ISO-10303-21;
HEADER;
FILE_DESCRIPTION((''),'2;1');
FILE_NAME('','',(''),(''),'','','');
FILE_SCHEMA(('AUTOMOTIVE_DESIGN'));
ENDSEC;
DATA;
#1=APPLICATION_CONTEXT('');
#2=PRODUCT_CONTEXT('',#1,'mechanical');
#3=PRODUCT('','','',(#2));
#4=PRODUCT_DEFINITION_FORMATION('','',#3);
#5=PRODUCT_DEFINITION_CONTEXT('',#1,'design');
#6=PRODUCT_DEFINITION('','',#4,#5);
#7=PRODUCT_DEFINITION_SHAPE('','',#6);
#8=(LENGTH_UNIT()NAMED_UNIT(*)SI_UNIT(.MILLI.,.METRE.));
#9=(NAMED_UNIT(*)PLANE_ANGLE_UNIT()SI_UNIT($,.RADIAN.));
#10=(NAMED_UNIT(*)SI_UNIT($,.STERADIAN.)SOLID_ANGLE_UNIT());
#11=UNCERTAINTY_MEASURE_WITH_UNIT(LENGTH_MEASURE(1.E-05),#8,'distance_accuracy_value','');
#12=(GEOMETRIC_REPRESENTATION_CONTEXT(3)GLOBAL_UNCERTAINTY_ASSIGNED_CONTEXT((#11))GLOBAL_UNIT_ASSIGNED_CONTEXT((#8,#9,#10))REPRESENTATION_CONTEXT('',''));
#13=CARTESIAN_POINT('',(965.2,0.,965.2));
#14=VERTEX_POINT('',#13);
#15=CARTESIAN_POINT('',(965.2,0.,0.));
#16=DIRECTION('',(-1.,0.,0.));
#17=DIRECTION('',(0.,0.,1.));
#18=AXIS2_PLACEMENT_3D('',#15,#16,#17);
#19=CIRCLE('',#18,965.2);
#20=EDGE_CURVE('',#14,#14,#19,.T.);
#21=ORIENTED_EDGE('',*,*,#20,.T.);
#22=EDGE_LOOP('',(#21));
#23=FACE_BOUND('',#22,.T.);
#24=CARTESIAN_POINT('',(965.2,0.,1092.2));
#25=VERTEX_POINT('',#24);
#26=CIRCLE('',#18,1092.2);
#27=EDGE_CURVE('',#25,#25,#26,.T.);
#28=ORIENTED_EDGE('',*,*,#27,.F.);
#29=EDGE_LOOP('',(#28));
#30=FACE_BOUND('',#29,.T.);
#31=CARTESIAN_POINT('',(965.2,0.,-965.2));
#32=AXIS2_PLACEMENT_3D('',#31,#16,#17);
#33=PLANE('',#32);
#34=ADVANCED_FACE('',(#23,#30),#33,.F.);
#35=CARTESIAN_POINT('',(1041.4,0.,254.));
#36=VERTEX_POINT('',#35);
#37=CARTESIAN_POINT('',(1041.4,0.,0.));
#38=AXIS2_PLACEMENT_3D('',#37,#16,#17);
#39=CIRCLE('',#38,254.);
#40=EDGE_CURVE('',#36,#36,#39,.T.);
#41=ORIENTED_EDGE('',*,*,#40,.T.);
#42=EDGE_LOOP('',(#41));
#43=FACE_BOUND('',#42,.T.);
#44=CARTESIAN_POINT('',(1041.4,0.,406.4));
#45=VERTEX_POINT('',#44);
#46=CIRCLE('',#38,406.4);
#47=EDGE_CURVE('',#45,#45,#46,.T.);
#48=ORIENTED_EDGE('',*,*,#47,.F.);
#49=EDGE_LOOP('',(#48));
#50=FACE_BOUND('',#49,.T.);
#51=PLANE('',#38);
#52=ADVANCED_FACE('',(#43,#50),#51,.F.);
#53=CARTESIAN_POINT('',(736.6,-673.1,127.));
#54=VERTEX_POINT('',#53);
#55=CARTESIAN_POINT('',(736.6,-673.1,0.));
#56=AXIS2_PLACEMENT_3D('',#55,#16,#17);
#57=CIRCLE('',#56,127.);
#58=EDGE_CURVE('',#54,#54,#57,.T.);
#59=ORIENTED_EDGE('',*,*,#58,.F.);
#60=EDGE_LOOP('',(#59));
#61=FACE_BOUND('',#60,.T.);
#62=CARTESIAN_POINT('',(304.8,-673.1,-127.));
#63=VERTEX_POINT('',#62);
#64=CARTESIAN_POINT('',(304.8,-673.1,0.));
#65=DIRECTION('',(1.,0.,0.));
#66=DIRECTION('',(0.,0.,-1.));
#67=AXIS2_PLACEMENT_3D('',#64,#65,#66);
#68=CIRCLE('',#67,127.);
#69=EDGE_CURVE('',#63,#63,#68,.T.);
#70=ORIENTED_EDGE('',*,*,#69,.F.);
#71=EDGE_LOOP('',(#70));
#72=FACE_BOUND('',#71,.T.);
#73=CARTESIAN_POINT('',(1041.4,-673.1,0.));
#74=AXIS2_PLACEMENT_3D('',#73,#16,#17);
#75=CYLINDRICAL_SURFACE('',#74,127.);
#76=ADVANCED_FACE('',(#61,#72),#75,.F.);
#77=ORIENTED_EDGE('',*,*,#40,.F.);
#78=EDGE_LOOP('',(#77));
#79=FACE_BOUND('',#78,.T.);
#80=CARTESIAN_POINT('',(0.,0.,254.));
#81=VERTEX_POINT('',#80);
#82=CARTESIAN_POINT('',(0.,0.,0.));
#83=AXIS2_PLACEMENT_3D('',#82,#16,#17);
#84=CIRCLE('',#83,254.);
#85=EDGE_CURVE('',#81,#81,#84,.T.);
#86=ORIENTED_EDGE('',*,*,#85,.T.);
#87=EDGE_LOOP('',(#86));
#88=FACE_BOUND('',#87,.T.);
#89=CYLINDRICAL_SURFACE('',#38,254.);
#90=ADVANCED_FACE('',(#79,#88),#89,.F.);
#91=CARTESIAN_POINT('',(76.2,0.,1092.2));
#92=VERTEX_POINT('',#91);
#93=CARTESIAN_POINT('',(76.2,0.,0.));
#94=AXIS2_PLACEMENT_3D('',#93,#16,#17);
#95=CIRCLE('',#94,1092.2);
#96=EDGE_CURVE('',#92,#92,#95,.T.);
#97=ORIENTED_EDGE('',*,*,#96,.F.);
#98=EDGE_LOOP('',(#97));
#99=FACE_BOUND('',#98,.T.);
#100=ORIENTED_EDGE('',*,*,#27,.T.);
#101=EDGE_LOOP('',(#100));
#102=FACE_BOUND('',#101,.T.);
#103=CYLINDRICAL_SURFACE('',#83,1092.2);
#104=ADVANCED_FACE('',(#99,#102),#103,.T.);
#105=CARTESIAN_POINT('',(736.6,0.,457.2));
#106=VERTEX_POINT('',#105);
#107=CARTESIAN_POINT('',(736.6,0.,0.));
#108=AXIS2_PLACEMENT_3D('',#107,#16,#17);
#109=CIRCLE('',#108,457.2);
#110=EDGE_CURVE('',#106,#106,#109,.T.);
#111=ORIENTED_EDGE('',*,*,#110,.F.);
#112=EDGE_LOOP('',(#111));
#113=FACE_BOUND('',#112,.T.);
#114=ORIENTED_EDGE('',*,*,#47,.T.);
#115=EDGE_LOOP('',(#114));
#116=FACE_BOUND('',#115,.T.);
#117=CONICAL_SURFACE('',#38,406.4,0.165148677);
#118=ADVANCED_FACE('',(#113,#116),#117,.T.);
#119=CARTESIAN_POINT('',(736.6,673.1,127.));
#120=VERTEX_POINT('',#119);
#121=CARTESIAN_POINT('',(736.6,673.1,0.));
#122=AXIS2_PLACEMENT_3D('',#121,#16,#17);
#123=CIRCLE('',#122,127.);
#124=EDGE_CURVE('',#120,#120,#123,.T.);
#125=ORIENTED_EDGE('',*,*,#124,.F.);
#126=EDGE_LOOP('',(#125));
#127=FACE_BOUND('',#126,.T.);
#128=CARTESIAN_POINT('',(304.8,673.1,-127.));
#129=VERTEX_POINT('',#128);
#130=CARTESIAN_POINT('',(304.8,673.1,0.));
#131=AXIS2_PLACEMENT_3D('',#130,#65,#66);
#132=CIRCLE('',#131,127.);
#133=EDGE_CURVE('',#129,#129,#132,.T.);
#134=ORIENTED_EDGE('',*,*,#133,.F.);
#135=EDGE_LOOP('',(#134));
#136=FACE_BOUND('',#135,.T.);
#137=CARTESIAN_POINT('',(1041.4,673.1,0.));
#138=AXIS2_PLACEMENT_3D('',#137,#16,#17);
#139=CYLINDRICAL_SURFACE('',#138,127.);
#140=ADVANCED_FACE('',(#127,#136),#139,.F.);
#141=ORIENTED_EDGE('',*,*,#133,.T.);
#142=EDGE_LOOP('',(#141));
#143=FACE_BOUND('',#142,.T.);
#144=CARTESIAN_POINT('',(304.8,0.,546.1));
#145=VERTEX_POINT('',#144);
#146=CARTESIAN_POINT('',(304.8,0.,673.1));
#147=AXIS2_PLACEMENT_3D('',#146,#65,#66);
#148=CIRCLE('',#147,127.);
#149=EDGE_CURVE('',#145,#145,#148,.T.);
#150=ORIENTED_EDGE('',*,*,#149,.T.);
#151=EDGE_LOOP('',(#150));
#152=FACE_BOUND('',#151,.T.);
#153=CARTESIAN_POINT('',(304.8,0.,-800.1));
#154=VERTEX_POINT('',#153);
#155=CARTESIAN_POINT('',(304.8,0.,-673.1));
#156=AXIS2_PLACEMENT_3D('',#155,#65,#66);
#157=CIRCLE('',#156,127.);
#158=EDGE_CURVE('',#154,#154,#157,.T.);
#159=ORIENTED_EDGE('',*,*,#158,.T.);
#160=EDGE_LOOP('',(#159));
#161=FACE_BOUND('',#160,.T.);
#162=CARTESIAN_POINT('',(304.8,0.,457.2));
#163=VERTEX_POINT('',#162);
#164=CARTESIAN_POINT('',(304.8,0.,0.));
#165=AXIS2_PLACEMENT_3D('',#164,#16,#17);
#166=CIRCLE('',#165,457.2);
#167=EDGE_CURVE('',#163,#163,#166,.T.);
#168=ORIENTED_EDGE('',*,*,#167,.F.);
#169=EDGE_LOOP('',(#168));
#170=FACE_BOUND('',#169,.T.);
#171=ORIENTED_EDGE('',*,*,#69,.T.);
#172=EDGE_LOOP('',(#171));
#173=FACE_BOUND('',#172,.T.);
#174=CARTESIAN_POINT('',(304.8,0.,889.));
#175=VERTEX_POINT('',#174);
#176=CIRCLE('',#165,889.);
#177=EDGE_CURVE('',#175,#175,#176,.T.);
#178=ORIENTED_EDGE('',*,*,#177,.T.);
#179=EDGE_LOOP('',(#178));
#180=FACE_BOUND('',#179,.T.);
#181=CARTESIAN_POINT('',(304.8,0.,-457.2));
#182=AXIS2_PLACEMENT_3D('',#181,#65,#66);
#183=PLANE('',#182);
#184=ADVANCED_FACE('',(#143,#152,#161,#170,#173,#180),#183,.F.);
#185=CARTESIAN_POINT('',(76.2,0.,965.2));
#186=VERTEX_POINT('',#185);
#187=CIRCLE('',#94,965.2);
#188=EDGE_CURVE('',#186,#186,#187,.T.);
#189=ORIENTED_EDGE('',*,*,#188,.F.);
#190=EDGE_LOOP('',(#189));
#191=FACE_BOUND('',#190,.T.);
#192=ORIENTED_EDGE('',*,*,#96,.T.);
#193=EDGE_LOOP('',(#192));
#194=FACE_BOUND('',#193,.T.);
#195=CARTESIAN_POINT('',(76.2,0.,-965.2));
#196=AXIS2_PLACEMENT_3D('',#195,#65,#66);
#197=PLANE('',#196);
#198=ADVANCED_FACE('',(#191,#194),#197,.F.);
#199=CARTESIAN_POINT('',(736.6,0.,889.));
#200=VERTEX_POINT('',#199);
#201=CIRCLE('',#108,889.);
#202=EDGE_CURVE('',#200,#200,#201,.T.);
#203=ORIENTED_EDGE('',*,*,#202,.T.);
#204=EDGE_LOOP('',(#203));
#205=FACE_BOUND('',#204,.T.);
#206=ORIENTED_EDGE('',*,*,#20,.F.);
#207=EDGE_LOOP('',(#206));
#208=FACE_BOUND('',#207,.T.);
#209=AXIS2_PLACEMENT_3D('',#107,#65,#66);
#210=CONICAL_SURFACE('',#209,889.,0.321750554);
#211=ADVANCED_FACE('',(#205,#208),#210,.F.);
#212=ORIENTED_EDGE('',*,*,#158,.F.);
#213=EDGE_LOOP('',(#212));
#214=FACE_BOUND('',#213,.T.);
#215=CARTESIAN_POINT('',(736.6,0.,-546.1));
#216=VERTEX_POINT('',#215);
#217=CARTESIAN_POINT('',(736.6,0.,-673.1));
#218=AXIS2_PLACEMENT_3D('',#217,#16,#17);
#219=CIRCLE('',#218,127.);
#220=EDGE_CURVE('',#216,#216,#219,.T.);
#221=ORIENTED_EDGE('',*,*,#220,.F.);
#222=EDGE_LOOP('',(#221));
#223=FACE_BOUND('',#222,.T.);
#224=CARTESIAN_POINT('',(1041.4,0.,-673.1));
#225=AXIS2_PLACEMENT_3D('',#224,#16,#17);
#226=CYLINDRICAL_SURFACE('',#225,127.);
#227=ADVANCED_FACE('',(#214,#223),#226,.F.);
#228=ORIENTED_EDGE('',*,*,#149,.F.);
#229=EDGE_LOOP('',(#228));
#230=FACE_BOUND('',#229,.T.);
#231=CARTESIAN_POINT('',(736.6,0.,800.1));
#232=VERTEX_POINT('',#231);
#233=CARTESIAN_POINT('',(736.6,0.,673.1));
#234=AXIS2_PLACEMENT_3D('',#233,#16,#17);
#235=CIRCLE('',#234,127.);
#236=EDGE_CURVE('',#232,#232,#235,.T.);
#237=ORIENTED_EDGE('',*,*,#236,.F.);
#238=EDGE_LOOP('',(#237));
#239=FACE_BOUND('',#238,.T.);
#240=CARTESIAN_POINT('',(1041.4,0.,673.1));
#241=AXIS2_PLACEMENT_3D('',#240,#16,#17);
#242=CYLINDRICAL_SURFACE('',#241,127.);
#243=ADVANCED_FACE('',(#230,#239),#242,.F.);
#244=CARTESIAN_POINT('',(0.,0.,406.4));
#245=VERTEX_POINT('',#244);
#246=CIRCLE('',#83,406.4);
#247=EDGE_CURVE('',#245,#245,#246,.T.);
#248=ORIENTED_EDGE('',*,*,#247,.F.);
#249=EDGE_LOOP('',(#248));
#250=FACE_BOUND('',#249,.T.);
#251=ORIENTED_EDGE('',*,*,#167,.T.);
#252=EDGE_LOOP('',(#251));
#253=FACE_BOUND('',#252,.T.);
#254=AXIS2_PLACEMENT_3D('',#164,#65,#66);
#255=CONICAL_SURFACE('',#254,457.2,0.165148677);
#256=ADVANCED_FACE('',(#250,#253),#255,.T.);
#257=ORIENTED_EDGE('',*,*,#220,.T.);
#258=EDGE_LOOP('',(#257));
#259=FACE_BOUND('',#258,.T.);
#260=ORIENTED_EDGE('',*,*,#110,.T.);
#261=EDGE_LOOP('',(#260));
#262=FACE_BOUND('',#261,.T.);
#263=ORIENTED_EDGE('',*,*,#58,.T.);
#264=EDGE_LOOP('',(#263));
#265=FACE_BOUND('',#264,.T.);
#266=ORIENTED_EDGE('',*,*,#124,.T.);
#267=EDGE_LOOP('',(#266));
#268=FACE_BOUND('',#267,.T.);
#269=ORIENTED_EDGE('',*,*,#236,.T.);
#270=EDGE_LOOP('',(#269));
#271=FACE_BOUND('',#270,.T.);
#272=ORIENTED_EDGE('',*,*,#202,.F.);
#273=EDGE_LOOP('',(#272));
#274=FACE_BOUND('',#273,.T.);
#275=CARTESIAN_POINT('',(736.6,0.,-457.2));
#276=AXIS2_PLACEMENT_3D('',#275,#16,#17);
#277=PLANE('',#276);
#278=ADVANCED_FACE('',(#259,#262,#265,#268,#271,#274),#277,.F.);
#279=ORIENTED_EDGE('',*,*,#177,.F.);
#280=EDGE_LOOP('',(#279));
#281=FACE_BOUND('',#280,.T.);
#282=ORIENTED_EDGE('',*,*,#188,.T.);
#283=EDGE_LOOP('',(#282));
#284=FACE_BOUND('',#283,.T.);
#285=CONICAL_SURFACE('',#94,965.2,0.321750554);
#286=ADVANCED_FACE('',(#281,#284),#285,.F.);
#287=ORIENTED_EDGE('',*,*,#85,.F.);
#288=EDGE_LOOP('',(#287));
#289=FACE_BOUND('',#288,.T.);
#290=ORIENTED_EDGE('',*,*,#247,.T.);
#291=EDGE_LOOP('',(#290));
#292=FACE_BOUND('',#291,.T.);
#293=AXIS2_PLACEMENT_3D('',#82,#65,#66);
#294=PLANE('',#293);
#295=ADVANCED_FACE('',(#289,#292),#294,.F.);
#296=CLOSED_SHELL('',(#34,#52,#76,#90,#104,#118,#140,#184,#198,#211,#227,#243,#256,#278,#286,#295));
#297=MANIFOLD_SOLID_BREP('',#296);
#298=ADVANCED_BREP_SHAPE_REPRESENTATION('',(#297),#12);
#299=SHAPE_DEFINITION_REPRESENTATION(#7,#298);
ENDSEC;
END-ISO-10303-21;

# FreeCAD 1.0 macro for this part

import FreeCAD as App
import Part
import Sketcher
from FreeCAD import Vector
Q = App.Units.Quantity

doc = App.newDocument("Part")
body = doc.addObject("PartDesign::Body", "Body")

sketch1 = doc.addObject("Sketcher::SketchObject", "Sketch")
body.addObject(sketch1)
sketch1.AttachmentSupport = (doc.XZ_Plane, [""])
sketch1.MapMode = "FlatFace"
sketch1.addGeometry([
    Part.LineSegment(Vector(0, -406, 0), Vector(0, 0, 0)),
    Part.LineSegment(Vector(0, 0, 0), Vector(1041, 0, 0)),
    Part.LineSegment(Vector(1041, 0, 0), Vector(1041, -406, 0)),
    Part.LineSegment(Vector(1041, -406, 0), Vector(737, -457, 0)),
    Part.LineSegment(Vector(737, -457, 0), Vector(737, -889, 0)),
    Part.LineSegment(Vector(737, -889, 0), Vector(965, -965, 0)),
    Part.LineSegment(Vector(965, -965, 0), Vector(965, -1092, 0)),
    Part.LineSegment(Vector(965, -1092, 0), Vector(76, -1092, 0)),
    Part.LineSegment(Vector(76, -1092, 0), Vector(76, -965, 0)),
    Part.LineSegment(Vector(76, -965, 0), Vector(305, -889, 0)),
    Part.LineSegment(Vector(305, -889, 0), Vector(305, -457, 0)),
    Part.LineSegment(Vector(305, -457, 0), Vector(0, -406, 0)),
], False)
sketch1.addConstraint([
    Sketcher.Constraint("Coincident", 0, 2, 1, 1),
    Sketcher.Constraint("Coincident", 1, 2, 2, 1),
    Sketcher.Constraint("Coincident", 2, 2, 3, 1),
    Sketcher.Constraint("Coincident", 3, 2, 4, 1),
    Sketcher.Constraint("Coincident", 4, 2, 5, 1),
    Sketcher.Constraint("Coincident", 5, 2, 6, 1),
    Sketcher.Constraint("Coincident", 6, 2, 7, 1),
    Sketcher.Constraint("Coincident", 7, 2, 8, 1),
    Sketcher.Constraint("Coincident", 8, 2, 9, 1),
    Sketcher.Constraint("Coincident", 9, 2, 10, 1),
    Sketcher.Constraint("Coincident", 10, 2, 11, 1),
    Sketcher.Constraint("Coincident", 11, 2, 0, 1),
    Sketcher.Constraint("Vertical", 0),
    Sketcher.Constraint("Horizontal", 1),
    Sketcher.Constraint("Vertical", 2),
    Sketcher.Constraint("Vertical", 4),
    Sketcher.Constraint("Vertical", 6),
    Sketcher.Constraint("Horizontal", 7),
    Sketcher.Constraint("Vertical", 8),
    Sketcher.Constraint("Vertical", 10),
    Sketcher.Constraint("Coincident", 0, 2, -1, 1),
    Sketcher.Constraint("Horizontal", 5, 2, 8, 2),
    Sketcher.Constraint("Horizontal", 4, 2, 9, 2),
    Sketcher.Constraint("Horizontal", 3, 2, 10, 2),
    Sketcher.Constraint("Horizontal", 2, 2, 11, 2),
    Sketcher.Constraint("Equal", 5, 9),
    Sketcher.Constraint("Equal", 3, 11),
    Sketcher.Constraint("DistanceX", 1, 1, 1, 2, Q("41 in")),
    Sketcher.Constraint("DistanceX", 7, 2, 7, 1, Q("35 in")),
    Sketcher.Constraint("DistanceY", 0, 1, 0, 2, Q("16 in")),
    Sketcher.Constraint("DistanceY", 4, 2, 4, 1, Q("17 in")),
    Sketcher.Constraint("DistanceY", 6, 2, 6, 1, Q("5 in")),
    Sketcher.Constraint("DistanceX", -1, 1, 3, 2, Q("29 in")),
    Sketcher.Constraint("DistanceY", 3, 2, -1, 1, Q("18 in")),
    Sketcher.Constraint("DistanceY", 5, 2, -1, 1, Q("38 in")),
])
revolution = doc.addObject("PartDesign::Revolution", "Revolution")
body.addObject(revolution)
revolution.Profile = sketch1
revolution.ReferenceAxis = (sketch1, ["H_Axis"])
revolution.Angle = 360

sketch2 = doc.addObject("Sketcher::SketchObject", "Sketch001")
body.addObject(sketch2)
sketch2.AttachmentSupport = (doc.YZ_Plane, [""])
sketch2.MapMode = "FlatFace"
sketch2.addGeometry([
    Part.Circle(Vector(673, 0, 0), Vector(0, 0, 1), 127),
    Part.Circle(Vector(0, 673, 0), Vector(0, 0, 1), 127),
    Part.Circle(Vector(-673, 0, 0), Vector(0, 0, 1), 127),
    Part.Circle(Vector(0, -673, 0), Vector(0, 0, 1), 127),
], False)
sketch2.addConstraint([
    Sketcher.Constraint("Equal", 0, 1),
    Sketcher.Constraint("Equal", 1, 2),
    Sketcher.Constraint("Equal", 2, 3),
    Sketcher.Constraint("Symmetric", 0, 3, 2, 3, -1, 1),
    Sketcher.Constraint("Symmetric", 1, 3, 3, 3, -1, 1),
    Sketcher.Constraint("PointOnObject", 0, 3, -1),
    Sketcher.Constraint("PointOnObject", 1, 3, -2),
    Sketcher.Constraint("Diameter", 0, Q("10 in")),
    Sketcher.Constraint("DistanceX", 2, 3, 0, 3, Q("53 in")),
    Sketcher.Constraint("DistanceY", 3, 3, 1, 3, Q("53 in")),
])
pocket1 = doc.addObject("PartDesign::Pocket", "Pocket")
body.addObject(pocket1)
pocket1.Profile = sketch2
pocket1.Type = "ThroughAll"
pocket1.Reversed = True

sketch3 = doc.addObject("Sketcher::SketchObject", "Sketch002")
body.addObject(sketch3)
sketch3.AttachmentSupport = (doc.YZ_Plane, [""])
sketch3.MapMode = "FlatFace"
sketch3.addGeometry(Part.Circle(Vector(0, 0, 0), Vector(0, 0, 1), 254), False)
sketch3.addConstraint([
    Sketcher.Constraint("Coincident", 0, 3, -1, 1),
    Sketcher.Constraint("Diameter", 0, Q("20 in")),
])
pocket2 = doc.addObject("PartDesign::Pocket", "Pocket001")
body.addObject(pocket2)
pocket2.Profile = sketch3
pocket2.Type = "ThroughAll"
pocket2.Reversed = True

doc.recompute()
